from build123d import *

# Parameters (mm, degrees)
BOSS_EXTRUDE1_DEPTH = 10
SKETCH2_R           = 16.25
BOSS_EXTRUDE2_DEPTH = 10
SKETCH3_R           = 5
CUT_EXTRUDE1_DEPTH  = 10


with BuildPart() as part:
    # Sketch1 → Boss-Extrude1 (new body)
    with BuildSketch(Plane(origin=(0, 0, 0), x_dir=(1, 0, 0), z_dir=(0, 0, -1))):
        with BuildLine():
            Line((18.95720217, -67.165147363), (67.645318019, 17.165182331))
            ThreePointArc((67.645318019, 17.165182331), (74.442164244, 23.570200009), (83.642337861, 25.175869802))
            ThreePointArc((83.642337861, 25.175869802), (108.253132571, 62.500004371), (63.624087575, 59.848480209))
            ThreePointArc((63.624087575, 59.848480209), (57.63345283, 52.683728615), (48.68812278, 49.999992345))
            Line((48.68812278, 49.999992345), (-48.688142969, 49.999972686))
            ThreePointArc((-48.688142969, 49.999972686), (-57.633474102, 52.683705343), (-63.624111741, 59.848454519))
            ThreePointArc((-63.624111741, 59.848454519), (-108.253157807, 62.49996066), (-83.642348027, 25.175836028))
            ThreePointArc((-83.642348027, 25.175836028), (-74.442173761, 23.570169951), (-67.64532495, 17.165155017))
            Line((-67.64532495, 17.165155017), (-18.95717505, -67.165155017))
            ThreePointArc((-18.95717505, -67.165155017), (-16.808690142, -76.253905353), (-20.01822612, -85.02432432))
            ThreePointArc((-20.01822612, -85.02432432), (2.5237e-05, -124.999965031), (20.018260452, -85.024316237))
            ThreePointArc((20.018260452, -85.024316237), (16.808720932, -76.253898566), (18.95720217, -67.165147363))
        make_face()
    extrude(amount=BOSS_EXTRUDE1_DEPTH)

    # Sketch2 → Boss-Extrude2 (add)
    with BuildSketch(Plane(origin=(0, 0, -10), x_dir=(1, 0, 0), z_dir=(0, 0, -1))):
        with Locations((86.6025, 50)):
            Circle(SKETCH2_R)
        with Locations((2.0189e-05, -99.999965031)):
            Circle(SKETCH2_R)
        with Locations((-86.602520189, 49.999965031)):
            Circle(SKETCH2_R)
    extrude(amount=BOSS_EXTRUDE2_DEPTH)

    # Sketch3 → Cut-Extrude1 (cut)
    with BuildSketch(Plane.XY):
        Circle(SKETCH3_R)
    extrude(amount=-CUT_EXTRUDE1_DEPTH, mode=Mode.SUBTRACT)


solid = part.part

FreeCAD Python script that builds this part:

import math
import FreeCAD as App
import Part
import Sketcher
Q = App.Units.Quantity

doc = App.newDocument("Part")
body = doc.addObject("PartDesign::Body", "Body")

# Sketch on XY plane
sketch1 = doc.addObject("Sketcher::SketchObject", "Sketch")
body.addObject(sketch1)
sketch1.AttachmentSupport = (doc.XY_Plane, [""])
sketch1.MapMode = "FlatFace"
sketch1.addGeometry([
    Part.LineSegment(App.Vector(19, 67, 0), App.Vector(68, -17, 0)),  # 0
    Part.ArcOfCircle(Part.Circle(App.Vector(82, -9, 0), App.Vector(0, 0, 1), 16), math.radians(-150), math.radians(-83)),  # 1
    Part.ArcOfCircle(Part.Circle(App.Vector(87, -50, 0), App.Vector(0, 0, 1), 25), math.radians(-157), math.radians(97)),  # 2
    Part.ArcOfCircle(Part.Circle(App.Vector(49, -66, 0), App.Vector(0, 0, 1), 16), math.radians(23), math.radians(90)),  # 3
    Part.LineSegment(App.Vector(49, -50, 0), App.Vector(-49, -50, 0)),  # 4
    Part.ArcOfCircle(Part.Circle(App.Vector(-49, -66, 0), App.Vector(0, 0, 1), 16), math.radians(90), math.radians(157)),  # 5
    Part.ArcOfCircle(Part.Circle(App.Vector(-87, -50, 0), App.Vector(0, 0, 1), 25), math.radians(83), math.radians(337)),  # 6
    Part.ArcOfCircle(Part.Circle(App.Vector(-82, -9, 0), App.Vector(0, 0, 1), 16), math.radians(-97), math.radians(-30)),  # 7
    Part.LineSegment(App.Vector(-68, -17, 0), App.Vector(-19, 67, 0)),  # 8
    Part.ArcOfCircle(Part.Circle(App.Vector(-33, 75, 0), App.Vector(0, 0, 1), 16), math.radians(-30), math.radians(37)),  # 9
    Part.ArcOfCircle(Part.Circle(App.Vector(0, 100, 0), App.Vector(0, 0, 1), 25), math.radians(-37), math.radians(217)),  # 10
    Part.ArcOfCircle(Part.Circle(App.Vector(33, 75, 0), App.Vector(0, 0, 1), 16), math.radians(143), math.radians(210)),  # 11
], False)
sketch1.addConstraint([
    Sketcher.Constraint("Tangent", 0, 2, 1, 1),
    Sketcher.Constraint("Tangent", 1, 2, 2, 2),
    Sketcher.Constraint("Tangent", 2, 1, 3, 1),
    Sketcher.Constraint("Tangent", 3, 2, 4, 1),
    Sketcher.Constraint("Tangent", 4, 2, 5, 1),
    Sketcher.Constraint("Tangent", 5, 2, 6, 2),
    Sketcher.Constraint("Tangent", 6, 1, 7, 1),
    Sketcher.Constraint("Tangent", 7, 2, 8, 1),
    Sketcher.Constraint("Tangent", 8, 2, 9, 1),
    Sketcher.Constraint("Tangent", 9, 2, 10, 2),
    Sketcher.Constraint("Tangent", 10, 1, 11, 1),
    Sketcher.Constraint("Tangent", 11, 2, 0, 1),
    Sketcher.Constraint("Equal", 1, 3),
    Sketcher.Constraint("Equal", 3, 5),
    Sketcher.Constraint("Equal", 2, 6),
    Sketcher.Constraint("Equal", 5, 7),
    Sketcher.Constraint("Equal", 7, 9),
    Sketcher.Constraint("Equal", 6, 10),
    Sketcher.Constraint("Equal", 9, 11),
    Sketcher.Constraint("Equal", 0, 4),
    Sketcher.Constraint("Equal", 4, 8),
    Sketcher.Constraint("Radius", 2, 25.0),
    Sketcher.Constraint("Angle", 0, Q("-60.000012 deg")),
    Sketcher.Constraint("Angle", 4, Q("179.999988 deg")),
    Sketcher.Constraint("Angle", 8, Q("59.999988 deg")),
    Sketcher.Constraint("Radius", 1, 16.25),
    Sketcher.Constraint("DistanceY", 2, 3, -1, 1, 50.0),
    Sketcher.Constraint("DistanceX", -1, 1, 2, 3, 86.6025),
    Sketcher.Constraint("DistanceX", 3, 3, 0, 2, 18.957199),
    Sketcher.Constraint("DistanceX", 11, 3, 0, 2, 34.615201),
    Sketcher.Constraint("DistanceX", 6, 1, 5, 3, 34.954202),
    Sketcher.Constraint("DistanceY", 5, 2, 7, 2, 42.6833),
    Sketcher.Constraint("DistanceX", -1, 1, 3, 3, 48.688119),
])
pad1 = doc.addObject("PartDesign::Pad", "Pad")
body.addObject(pad1)
pad1.Profile = sketch1
pad1.Length = 10
pad1.Reversed = True

# Sketch on XY plane
sketch2 = doc.addObject("Sketcher::SketchObject", "Sketch001")
body.addObject(sketch2)
sketch2.AttachmentSupport = (doc.XY_Plane, [""])
sketch2.MapMode = "FlatFace"
sketch2.AttachmentOffset = App.Placement(App.Vector(0, 0, -10), App.Rotation())
sketch2.addGeometry([
    Part.Circle(App.Vector(87, -50, 0), App.Vector(0, 0, 1), 16),
    Part.Circle(App.Vector(0, 100, 0), App.Vector(0, 0, 1), 16),
    Part.Circle(App.Vector(-87, -50, 0), App.Vector(0, 0, 1), 16),
], False)
sketch2.addConstraint([
    Sketcher.Constraint("Equal", 0, 1),
    Sketcher.Constraint("Equal", 1, 2),
    Sketcher.Constraint("Diameter", 0, 32.5),
    Sketcher.Constraint("DistanceY", 0, 3, -1, 1, 50.0),
    Sketcher.Constraint("DistanceX", -1, 1, 0, 3, 86.6025),
    Sketcher.Constraint("DistanceX", 2, 3, -1, 1, 86.60252),
    Sketcher.Constraint("DistanceX", 1, 3, 0, 3, 86.60248),
    Sketcher.Constraint("DistanceY", 2, 3, 1, 3, 149.99993),
    Sketcher.Constraint("DistanceY", -1, 1, 1, 3, 99.999965),
])
pad2 = doc.addObject("PartDesign::Pad", "Pad001")
body.addObject(pad2)
pad2.Profile = sketch2
pad2.Length = 10
pad2.Reversed = True

# Sketch on XY plane
sketch3 = doc.addObject("Sketcher::SketchObject", "Sketch002")
body.addObject(sketch3)
sketch3.AttachmentSupport = (doc.XY_Plane, [""])
sketch3.MapMode = "FlatFace"
sketch3.addGeometry(Part.Circle(App.Vector(0, 0, 0), App.Vector(0, 0, 1), 5), False)
sketch3.addConstraint([
    Sketcher.Constraint("Coincident", 0, 3, -1, 1),
    Sketcher.Constraint("Diameter", 0, 10.0),
])
pocket1 = doc.addObject("PartDesign::Pocket", "Pocket")
body.addObject(pocket1)
pocket1.Profile = sketch3
pocket1.Length = 10

doc.recompute()
